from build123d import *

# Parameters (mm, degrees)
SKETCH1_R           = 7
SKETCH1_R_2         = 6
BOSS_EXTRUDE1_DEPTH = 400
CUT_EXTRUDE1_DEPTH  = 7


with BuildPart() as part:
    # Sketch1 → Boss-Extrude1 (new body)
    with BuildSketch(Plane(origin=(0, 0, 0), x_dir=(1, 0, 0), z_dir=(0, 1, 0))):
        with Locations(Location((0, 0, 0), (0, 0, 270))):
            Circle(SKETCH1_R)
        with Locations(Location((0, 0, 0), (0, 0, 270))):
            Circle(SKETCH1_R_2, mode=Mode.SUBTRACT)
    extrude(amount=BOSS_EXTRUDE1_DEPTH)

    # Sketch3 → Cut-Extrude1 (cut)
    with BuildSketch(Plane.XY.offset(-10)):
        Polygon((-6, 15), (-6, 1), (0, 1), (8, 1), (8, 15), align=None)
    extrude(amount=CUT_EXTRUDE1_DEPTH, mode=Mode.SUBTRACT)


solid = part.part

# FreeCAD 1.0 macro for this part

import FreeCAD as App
import Part
import Sketcher

V = App.Vector
Q = App.Units.Quantity


def add_polygon(sketch, points):
    """Adds a closed chain of lines whose ends are joined by coincident constraints."""
    first, n = sketch.GeometryCount, len(points)
    for a, b in zip(points, points[1:] + points[:1]):
        sketch.addGeometry(Part.LineSegment(App.Vector(*a, 0), App.Vector(*b, 0)), False)
    for i in range(n):
        sketch.addConstraint(Sketcher.Constraint("Coincident", first + i, 2, first + (i + 1) % n, 1))

doc = App.newDocument("Part")
params = doc.addObject("Spreadsheet::Sheet", "Params")
for row, (alias, value) in enumerate([
    ("sketch1_diameter", "14 mm"),
    ("sketch1_diameter2", "12 mm"),
    ("pad1_length", "400 mm"),
    ("sketch2_width", "14 mm"),
    ("pocket1_length", "7 mm"),
], start=1):
    params.set(f"A{row}", alias)
    params.set(f"B{row}", "=" + value)
    params.setAlias(f"B{row}", alias)

body = doc.addObject("PartDesign::Body", "Body")

# Sketch on XZ plane
sketch1 = body.newObject("Sketcher::SketchObject", "Sketch")
sketch1.AttachmentSupport = (doc.getObject("XZ_Plane"), [""])
sketch1.MapMode = "FlatFace"
sketch1.addGeometry(Part.Circle(V(0, 0, 0), V(0, 0, 1), 7), False)
sketch1.addGeometry(Part.Circle(V(0, 0, 0), V(0, 0, 1), 6), False)
sketch1.addConstraint(Sketcher.Constraint("Coincident", 0, 3, -1, 1))
sketch1.addConstraint(Sketcher.Constraint("Coincident", 1, 3, -1, 1))
sketch1.addConstraint(Sketcher.Constraint("Diameter", 0, Q("14 mm")))
sketch1.addConstraint(Sketcher.Constraint("Diameter", 1, Q("12 mm")))
sketch1.setExpression("Constraints[2]", "Params.sketch1_diameter")
sketch1.setExpression("Constraints[3]", "Params.sketch1_diameter2")
pad1 = body.newObject("PartDesign::Pad", "Pad")
pad1.Profile = sketch1
pad1.setExpression("Length", "Params.pad1_length")
pad1.Reversed = True

# Sketch on XY plane
sketch2 = body.newObject("Sketcher::SketchObject", "Sketch001")
sketch2.AttachmentSupport = (doc.getObject("XY_Plane"), [""])
sketch2.MapMode = "FlatFace"
sketch2.AttachmentOffset = App.Placement(V(0, 0, -10), App.Rotation())
add_polygon(sketch2, [(-6, 15), (-6, 1), (8, 1), (8, 15)])  # lines 0-3
sketch2.addConstraint(Sketcher.Constraint("Vertical", 0))
sketch2.addConstraint(Sketcher.Constraint("Horizontal", 1))
sketch2.addConstraint(Sketcher.Constraint("Vertical", 2))
sketch2.addConstraint(Sketcher.Constraint("Horizontal", 3))
sketch2.addConstraint(Sketcher.Constraint("Equal", 3, 0))
sketch2.addConstraint(Sketcher.Constraint("DistanceX", 1, 1, 1, 2, Q("14 mm")))
sketch2.addConstraint(Sketcher.Constraint("DistanceX", 0, 2, -1, 1, Q("6 mm")))
sketch2.addConstraint(Sketcher.Constraint("DistanceY", -1, 1, 0, 2, Q("1 mm")))
sketch2.setExpression("Constraints[9]", "Params.sketch2_width")
pocket1 = body.newObject("PartDesign::Pocket", "Pocket")
pocket1.Profile = sketch2
pocket1.setExpression("Length", "Params.pocket1_length")
pocket1.Reversed = True

doc.recompute()
